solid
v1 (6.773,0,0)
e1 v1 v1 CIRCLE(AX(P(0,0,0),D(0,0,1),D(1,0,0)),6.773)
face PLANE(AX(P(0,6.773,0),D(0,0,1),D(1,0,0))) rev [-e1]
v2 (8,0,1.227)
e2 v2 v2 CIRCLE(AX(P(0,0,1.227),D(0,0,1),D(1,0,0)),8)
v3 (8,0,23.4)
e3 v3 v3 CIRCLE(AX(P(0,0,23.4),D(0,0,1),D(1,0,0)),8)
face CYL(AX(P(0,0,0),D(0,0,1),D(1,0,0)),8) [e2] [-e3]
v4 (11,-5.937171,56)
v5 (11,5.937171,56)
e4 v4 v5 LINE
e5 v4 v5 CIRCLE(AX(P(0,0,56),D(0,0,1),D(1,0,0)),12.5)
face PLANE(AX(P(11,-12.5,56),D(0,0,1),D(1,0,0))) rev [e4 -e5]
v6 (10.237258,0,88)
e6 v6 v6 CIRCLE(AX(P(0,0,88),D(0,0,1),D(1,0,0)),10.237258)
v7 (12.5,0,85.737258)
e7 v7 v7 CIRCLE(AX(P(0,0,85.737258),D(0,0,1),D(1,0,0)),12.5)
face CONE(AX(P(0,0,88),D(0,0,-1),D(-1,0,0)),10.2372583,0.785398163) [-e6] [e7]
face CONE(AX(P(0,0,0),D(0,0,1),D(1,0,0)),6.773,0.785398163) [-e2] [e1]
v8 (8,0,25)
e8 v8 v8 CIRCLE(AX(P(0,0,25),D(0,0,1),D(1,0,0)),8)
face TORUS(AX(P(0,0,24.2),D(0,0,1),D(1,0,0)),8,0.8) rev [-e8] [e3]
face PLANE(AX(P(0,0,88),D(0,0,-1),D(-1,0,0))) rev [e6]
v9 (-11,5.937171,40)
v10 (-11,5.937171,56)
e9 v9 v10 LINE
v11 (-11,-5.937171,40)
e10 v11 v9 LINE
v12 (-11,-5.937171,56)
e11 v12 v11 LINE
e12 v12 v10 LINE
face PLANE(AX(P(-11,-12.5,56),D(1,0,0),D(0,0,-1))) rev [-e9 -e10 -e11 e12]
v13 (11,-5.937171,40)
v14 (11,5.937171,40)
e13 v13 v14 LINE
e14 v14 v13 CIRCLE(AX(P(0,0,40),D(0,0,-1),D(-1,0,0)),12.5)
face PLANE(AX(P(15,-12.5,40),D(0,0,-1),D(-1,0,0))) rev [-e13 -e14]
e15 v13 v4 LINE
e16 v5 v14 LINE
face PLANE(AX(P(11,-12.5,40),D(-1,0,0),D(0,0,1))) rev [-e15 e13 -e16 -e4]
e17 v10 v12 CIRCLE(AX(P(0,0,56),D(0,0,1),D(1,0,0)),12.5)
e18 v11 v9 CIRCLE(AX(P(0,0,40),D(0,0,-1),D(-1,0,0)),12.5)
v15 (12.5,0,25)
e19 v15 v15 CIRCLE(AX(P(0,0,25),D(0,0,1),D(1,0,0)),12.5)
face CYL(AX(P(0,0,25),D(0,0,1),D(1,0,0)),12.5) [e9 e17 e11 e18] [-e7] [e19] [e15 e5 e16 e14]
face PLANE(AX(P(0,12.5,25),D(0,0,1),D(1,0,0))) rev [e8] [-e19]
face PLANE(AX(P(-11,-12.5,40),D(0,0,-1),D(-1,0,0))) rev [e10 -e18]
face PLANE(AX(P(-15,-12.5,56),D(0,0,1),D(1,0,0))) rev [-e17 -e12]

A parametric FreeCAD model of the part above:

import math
import FreeCAD as App
import Part
import Sketcher
Q = App.Units.Quantity


def add_polygon(sketch, points):
    """Adds a closed chain of lines whose ends are joined by coincident constraints."""
    first, n = sketch.GeometryCount, len(points)
    for a, b in zip(points, points[1:] + points[:1]):
        sketch.addGeometry(Part.LineSegment(App.Vector(*a, 0), App.Vector(*b, 0)), False)
    for i in range(n):
        sketch.addConstraint(Sketcher.Constraint("Coincident", first + i, 2, first + (i + 1) % n, 1))

doc = App.newDocument("Part")
params = doc.addObject("Spreadsheet::Sheet", "Params")
for row, (alias, value) in enumerate([
    ("sketch1_width", "8 mm"),
    ("sketch1_height", "25 mm"),
    ("revolution_angle", "360 deg"),
    ("sketch2_height", "63 mm"),
    ("sketch2_width", "12.5 mm"),
    ("revolution2_angle", "360 deg"),
    ("sketch3_length", "3.2 mm"),
    ("groove_angle", "360 deg"),
    ("sketch4_radius", "0.8 mm"),
    ("groove2_angle", "360 deg"),
    ("sketch5_width", "4 mm"),
    ("sketch5_height", "16 mm"),
    ("sketch6_width", "4 mm"),
    ("sketch6_height", "16 mm"),
], start=1):
    params.set(f"A{row}", alias)
    params.set(f"B{row}", "=" + value)
    params.setAlias(f"B{row}", alias)

body = doc.addObject("PartDesign::Body", "Body")

sketch1 = doc.addObject("Sketcher::SketchObject", "Sketch")
body.addObject(sketch1)
sketch1.AttachmentSupport = (doc.YZ_Plane, [""])
sketch1.MapMode = "FlatFace"
add_polygon(sketch1, [(8, 25), (0, 25), (0, 0), (6.8, 0), (8, 1.2)])
sketch1.addConstraint([
    Sketcher.Constraint("Horizontal", 0),
    Sketcher.Constraint("Vertical", 1),
    Sketcher.Constraint("Horizontal", 2),
    Sketcher.Constraint("Vertical", 4),
    Sketcher.Constraint("Coincident", 1, 2, -1, 1),
    Sketcher.Constraint("DistanceX", 0, 2, 0, 1, Q("8 mm")),
    Sketcher.Constraint("DistanceY", 1, 2, 1, 1, Q("25 mm")),
    Sketcher.Constraint("Angle", 3, Q("45 deg")),
    Sketcher.Constraint("DistanceX", 2, 1, 2, 2, Q("6.773 mm")),
])
sketch1.setExpression("Constraints[10]", "Params.sketch1_width")
sketch1.setExpression("Constraints[11]", "Params.sketch1_height")
revolution = doc.addObject("PartDesign::Revolution", "Revolution")
body.addObject(revolution)
revolution.Profile = sketch1
revolution.ReferenceAxis = (sketch1, ["V_Axis"])
revolution.setExpression("Angle", "Params.revolution_angle")

sketch2 = doc.addObject("Sketcher::SketchObject", "Sketch001")
body.addObject(sketch2)
sketch2.AttachmentSupport = (doc.YZ_Plane, [""])
sketch2.MapMode = "FlatFace"
add_polygon(sketch2, [(12, 88), (0, 88), (0, 25), (12, 25)])
sketch2.addConstraint([
    Sketcher.Constraint("Horizontal", 0),
    Sketcher.Constraint("Vertical", 1),
    Sketcher.Constraint("Horizontal", 2),
    Sketcher.Constraint("Vertical", 3),
    Sketcher.Constraint("PointOnObject", 0, 2, -2),
    Sketcher.Constraint("DistanceY", 1, 2, 1, 1, Q("63 mm")),
    Sketcher.Constraint("DistanceX", 0, 2, 0, 1, Q("12.5 mm")),
    Sketcher.Constraint("DistanceY", -1, 1, 0, 2, Q("88 mm")),
])
sketch2.setExpression("Constraints[9]", "Params.sketch2_height")
sketch2.setExpression("Constraints[10]", "Params.sketch2_width")
revolution2 = doc.addObject("PartDesign::Revolution", "Revolution001")
body.addObject(revolution2)
revolution2.Profile = sketch2
revolution2.ReferenceAxis = (sketch2, ["V_Axis"])
revolution2.setExpression("Angle", "Params.revolution2_angle")

sketch3 = doc.addObject("Sketcher::SketchObject", "Sketch002")
body.addObject(sketch3)
sketch3.AttachmentSupport = (doc.YZ_Plane, [""])
sketch3.MapMode = "FlatFace"
add_polygon(sketch3, [(10.2, 88), (12.5, 85.7), (12.5, 88)])
sketch3.addConstraint([
    Sketcher.Constraint("Vertical", 1),
    Sketcher.Constraint("Horizontal", 2),
    Sketcher.Constraint("Equal", 2, 1),
    Sketcher.Constraint("DistanceY", -1, 1, 1, 2, Q("88 mm")),
    Sketcher.Constraint("Distance", 0, Q("3.2 mm")),
    Sketcher.Constraint("DistanceX", -1, 1, 0, 2, Q("12.5 mm")),
])
sketch3.setExpression("Constraints[7]", "Params.sketch3_length")
groove = doc.addObject("PartDesign::Groove", "Groove")
body.addObject(groove)
groove.Profile = sketch3
groove.ReferenceAxis = (sketch3, ["V_Axis"])
groove.setExpression("Angle", "Params.groove_angle")

sketch4 = doc.addObject("Sketcher::SketchObject", "Sketch003")
body.addObject(sketch4)
sketch4.AttachmentSupport = (doc.YZ_Plane, [""])
sketch4.MapMode = "FlatFace"
sketch4.addGeometry([
    Part.LineSegment(App.Vector(8, 23.4, 0), App.Vector(8, 25, 0)),
    Part.ArcOfCircle(Part.Circle(App.Vector(8, 24.2, 0), App.Vector(0, 0, 1), 0.8), math.radians(90), math.radians(270)),
], False)
sketch4.addConstraint([
    Sketcher.Constraint("Coincident", 0, 1, 1, 2),
    Sketcher.Constraint("Coincident", 1, 1, 0, 2),
    Sketcher.Constraint("Vertical", 0),
    Sketcher.Constraint("Vertical", 1, 3, 0, 1),
    Sketcher.Constraint("Radius", 1, Q("0.8 mm")),
    Sketcher.Constraint("DistanceX", -1, 1, 1, 3, Q("8 mm")),
    Sketcher.Constraint("DistanceY", -1, 1, 1, 1, Q("25 mm")),
])
sketch4.setExpression("Constraints[4]", "Params.sketch4_radius")
groove2 = doc.addObject("PartDesign::Groove", "Groove001")
body.addObject(groove2)
groove2.Profile = sketch4
groove2.ReferenceAxis = (sketch4, ["V_Axis"])
groove2.setExpression("Angle", "Params.groove2_angle")

sketch5 = doc.addObject("Sketcher::SketchObject", "Sketch004")
body.addObject(sketch5)
sketch5.AttachmentSupport = (doc.XZ_Plane, [""])
sketch5.MapMode = "FlatFace"
add_polygon(sketch5, [(11, 40), (11, 56), (15, 56), (15, 40)])
sketch5.addConstraint([
    Sketcher.Constraint("Vertical", 0),
    Sketcher.Constraint("Horizontal", 1),
    Sketcher.Constraint("Vertical", 2),
    Sketcher.Constraint("Horizontal", 3),
    Sketcher.Constraint("DistanceX", 1, 1, 1, 2, Q("4 mm")),
    Sketcher.Constraint("DistanceY", 0, 1, 0, 2, Q("16 mm")),
    Sketcher.Constraint("DistanceX", -1, 1, 0, 2, Q("11 mm")),
    Sketcher.Constraint("DistanceY", -1, 1, 0, 2, Q("56 mm")),
])
sketch5.setExpression("Constraints[8]", "Params.sketch5_width")
sketch5.setExpression("Constraints[9]", "Params.sketch5_height")
pocket1 = doc.addObject("PartDesign::Pocket", "Pocket")
body.addObject(pocket1)
pocket1.Profile = sketch5
pocket1.Type = "ThroughAll"
pocket1.Midplane = True

sketch6 = doc.addObject("Sketcher::SketchObject", "Sketch005")
body.addObject(sketch6)
sketch6.AttachmentSupport = (doc.XZ_Plane, [""])
sketch6.MapMode = "FlatFace"
add_polygon(sketch6, [(-15, 40), (-15, 56), (-11, 56), (-11, 40)])
sketch6.addConstraint([
    Sketcher.Constraint("Vertical", 0),
    Sketcher.Constraint("Horizontal", 1),
    Sketcher.Constraint("Vertical", 2),
    Sketcher.Constraint("Horizontal", 3),
    Sketcher.Constraint("DistanceX", 1, 1, 1, 2, Q("4 mm")),
    Sketcher.Constraint("DistanceY", 0, 1, 0, 2, Q("16 mm")),
    Sketcher.Constraint("DistanceX", 0, 2, -1, 1, Q("15 mm")),
    Sketcher.Constraint("DistanceY", -1, 1, 0, 2, Q("56 mm")),
])
sketch6.setExpression("Constraints[8]", "Params.sketch6_width")
sketch6.setExpression("Constraints[9]", "Params.sketch6_height")
pocket2 = doc.addObject("PartDesign::Pocket", "Pocket001")
body.addObject(pocket2)
pocket2.Profile = sketch6
pocket2.Type = "ThroughAll"
pocket2.Midplane = True

doc.recompute()
